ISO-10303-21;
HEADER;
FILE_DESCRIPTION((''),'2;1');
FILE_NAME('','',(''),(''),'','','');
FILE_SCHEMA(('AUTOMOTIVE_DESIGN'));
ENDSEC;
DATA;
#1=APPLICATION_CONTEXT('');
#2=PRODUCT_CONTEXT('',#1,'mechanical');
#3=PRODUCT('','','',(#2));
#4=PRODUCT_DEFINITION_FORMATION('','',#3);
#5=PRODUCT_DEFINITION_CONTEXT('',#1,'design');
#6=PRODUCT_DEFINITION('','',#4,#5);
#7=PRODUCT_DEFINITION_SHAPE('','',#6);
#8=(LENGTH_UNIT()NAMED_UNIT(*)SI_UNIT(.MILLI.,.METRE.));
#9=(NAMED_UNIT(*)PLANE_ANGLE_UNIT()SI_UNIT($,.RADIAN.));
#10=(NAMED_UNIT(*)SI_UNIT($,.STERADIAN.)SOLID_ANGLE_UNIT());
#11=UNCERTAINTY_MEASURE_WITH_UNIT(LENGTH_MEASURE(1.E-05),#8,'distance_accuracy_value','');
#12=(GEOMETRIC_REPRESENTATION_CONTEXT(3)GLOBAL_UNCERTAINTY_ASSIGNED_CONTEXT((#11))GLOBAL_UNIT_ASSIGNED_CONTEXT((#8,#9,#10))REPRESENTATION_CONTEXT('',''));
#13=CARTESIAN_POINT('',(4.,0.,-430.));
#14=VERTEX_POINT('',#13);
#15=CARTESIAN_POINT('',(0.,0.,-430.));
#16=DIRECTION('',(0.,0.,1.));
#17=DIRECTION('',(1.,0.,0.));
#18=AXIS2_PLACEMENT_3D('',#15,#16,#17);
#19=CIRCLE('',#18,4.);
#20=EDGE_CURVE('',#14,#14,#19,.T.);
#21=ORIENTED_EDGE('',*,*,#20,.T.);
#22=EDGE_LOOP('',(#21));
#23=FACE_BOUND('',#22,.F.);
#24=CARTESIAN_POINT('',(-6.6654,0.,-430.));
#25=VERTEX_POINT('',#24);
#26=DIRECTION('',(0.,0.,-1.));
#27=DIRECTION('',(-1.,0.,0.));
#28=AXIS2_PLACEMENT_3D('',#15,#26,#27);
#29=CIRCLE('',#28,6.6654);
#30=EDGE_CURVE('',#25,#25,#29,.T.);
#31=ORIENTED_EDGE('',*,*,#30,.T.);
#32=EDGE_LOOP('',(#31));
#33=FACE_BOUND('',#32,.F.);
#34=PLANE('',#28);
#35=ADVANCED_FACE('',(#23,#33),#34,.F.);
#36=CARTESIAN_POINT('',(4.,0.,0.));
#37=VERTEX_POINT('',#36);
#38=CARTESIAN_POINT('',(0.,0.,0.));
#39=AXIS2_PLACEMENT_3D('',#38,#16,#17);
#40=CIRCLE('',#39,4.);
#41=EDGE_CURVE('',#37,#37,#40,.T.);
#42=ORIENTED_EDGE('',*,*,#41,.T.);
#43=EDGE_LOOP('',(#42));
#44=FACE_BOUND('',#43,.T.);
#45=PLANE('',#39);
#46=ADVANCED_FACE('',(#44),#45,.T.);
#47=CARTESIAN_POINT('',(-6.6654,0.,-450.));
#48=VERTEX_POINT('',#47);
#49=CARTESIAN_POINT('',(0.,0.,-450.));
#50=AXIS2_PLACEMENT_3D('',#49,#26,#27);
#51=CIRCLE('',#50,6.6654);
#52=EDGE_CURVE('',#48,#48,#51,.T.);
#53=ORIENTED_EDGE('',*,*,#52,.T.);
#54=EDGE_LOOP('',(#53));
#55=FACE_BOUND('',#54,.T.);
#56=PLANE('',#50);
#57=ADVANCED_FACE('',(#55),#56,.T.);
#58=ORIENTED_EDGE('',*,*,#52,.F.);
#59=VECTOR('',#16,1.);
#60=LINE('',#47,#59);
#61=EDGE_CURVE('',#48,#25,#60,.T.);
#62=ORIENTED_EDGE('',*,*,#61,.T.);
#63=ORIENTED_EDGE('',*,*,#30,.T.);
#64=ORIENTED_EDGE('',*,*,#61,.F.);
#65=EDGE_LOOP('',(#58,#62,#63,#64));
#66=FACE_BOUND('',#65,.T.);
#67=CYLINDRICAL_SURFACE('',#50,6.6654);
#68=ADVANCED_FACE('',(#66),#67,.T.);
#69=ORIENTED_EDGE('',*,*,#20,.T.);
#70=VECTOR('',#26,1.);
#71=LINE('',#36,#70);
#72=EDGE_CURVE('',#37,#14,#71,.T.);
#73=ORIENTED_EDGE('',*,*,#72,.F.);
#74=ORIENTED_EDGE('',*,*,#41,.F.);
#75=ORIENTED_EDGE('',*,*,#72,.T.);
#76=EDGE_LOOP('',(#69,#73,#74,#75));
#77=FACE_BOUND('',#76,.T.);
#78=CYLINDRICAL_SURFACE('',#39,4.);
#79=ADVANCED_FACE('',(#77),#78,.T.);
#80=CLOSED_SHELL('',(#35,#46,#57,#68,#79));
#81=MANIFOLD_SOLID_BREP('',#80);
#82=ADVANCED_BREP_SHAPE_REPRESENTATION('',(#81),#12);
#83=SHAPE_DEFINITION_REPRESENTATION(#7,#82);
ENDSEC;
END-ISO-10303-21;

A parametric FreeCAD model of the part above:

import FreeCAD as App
import Part
import Sketcher
from FreeCAD import Vector

doc = App.newDocument("Part")
body = doc.addObject("PartDesign::Body", "Body")

sketch1 = body.newObject("Sketcher::SketchObject", "Sketch")
sketch1.AttachmentSupport = (doc.getObject("XY_Plane"), [""])
sketch1.MapMode = "FlatFace"
sketch1.addGeometry(Part.Circle(Vector(0, 0, 0), Vector(0, 0, 1), 4), False)
sketch1.addConstraint([
    Sketcher.Constraint("Coincident", 0, 3, -1, 1),
    Sketcher.Constraint("Diameter", 0, 8.0),
])
pad1 = body.newObject("PartDesign::Pad", "Pad")
pad1.Profile = sketch1
pad1.Length = 450
pad1.Reversed = True

sketch2 = body.newObject("Sketcher::SketchObject", "Sketch001")
sketch2.AttachmentSupport = (doc.getObject("XY_Plane"), [""])
sketch2.MapMode = "FlatFace"
sketch2.AttachmentOffset = App.Placement(Vector(0, 0, -450), App.Rotation())
sketch2.addGeometry(Part.Circle(Vector(0, 0, 0), Vector(0, 0, 1), 7), False)
sketch2.addConstraint([
    Sketcher.Constraint("Coincident", 0, 3, -1, 1),
    Sketcher.Constraint("Diameter", 0, 13.3308),
])
pad2 = body.newObject("PartDesign::Pad", "Pad001")
pad2.Profile = sketch2
pad2.Length = 20

doc.recompute()
